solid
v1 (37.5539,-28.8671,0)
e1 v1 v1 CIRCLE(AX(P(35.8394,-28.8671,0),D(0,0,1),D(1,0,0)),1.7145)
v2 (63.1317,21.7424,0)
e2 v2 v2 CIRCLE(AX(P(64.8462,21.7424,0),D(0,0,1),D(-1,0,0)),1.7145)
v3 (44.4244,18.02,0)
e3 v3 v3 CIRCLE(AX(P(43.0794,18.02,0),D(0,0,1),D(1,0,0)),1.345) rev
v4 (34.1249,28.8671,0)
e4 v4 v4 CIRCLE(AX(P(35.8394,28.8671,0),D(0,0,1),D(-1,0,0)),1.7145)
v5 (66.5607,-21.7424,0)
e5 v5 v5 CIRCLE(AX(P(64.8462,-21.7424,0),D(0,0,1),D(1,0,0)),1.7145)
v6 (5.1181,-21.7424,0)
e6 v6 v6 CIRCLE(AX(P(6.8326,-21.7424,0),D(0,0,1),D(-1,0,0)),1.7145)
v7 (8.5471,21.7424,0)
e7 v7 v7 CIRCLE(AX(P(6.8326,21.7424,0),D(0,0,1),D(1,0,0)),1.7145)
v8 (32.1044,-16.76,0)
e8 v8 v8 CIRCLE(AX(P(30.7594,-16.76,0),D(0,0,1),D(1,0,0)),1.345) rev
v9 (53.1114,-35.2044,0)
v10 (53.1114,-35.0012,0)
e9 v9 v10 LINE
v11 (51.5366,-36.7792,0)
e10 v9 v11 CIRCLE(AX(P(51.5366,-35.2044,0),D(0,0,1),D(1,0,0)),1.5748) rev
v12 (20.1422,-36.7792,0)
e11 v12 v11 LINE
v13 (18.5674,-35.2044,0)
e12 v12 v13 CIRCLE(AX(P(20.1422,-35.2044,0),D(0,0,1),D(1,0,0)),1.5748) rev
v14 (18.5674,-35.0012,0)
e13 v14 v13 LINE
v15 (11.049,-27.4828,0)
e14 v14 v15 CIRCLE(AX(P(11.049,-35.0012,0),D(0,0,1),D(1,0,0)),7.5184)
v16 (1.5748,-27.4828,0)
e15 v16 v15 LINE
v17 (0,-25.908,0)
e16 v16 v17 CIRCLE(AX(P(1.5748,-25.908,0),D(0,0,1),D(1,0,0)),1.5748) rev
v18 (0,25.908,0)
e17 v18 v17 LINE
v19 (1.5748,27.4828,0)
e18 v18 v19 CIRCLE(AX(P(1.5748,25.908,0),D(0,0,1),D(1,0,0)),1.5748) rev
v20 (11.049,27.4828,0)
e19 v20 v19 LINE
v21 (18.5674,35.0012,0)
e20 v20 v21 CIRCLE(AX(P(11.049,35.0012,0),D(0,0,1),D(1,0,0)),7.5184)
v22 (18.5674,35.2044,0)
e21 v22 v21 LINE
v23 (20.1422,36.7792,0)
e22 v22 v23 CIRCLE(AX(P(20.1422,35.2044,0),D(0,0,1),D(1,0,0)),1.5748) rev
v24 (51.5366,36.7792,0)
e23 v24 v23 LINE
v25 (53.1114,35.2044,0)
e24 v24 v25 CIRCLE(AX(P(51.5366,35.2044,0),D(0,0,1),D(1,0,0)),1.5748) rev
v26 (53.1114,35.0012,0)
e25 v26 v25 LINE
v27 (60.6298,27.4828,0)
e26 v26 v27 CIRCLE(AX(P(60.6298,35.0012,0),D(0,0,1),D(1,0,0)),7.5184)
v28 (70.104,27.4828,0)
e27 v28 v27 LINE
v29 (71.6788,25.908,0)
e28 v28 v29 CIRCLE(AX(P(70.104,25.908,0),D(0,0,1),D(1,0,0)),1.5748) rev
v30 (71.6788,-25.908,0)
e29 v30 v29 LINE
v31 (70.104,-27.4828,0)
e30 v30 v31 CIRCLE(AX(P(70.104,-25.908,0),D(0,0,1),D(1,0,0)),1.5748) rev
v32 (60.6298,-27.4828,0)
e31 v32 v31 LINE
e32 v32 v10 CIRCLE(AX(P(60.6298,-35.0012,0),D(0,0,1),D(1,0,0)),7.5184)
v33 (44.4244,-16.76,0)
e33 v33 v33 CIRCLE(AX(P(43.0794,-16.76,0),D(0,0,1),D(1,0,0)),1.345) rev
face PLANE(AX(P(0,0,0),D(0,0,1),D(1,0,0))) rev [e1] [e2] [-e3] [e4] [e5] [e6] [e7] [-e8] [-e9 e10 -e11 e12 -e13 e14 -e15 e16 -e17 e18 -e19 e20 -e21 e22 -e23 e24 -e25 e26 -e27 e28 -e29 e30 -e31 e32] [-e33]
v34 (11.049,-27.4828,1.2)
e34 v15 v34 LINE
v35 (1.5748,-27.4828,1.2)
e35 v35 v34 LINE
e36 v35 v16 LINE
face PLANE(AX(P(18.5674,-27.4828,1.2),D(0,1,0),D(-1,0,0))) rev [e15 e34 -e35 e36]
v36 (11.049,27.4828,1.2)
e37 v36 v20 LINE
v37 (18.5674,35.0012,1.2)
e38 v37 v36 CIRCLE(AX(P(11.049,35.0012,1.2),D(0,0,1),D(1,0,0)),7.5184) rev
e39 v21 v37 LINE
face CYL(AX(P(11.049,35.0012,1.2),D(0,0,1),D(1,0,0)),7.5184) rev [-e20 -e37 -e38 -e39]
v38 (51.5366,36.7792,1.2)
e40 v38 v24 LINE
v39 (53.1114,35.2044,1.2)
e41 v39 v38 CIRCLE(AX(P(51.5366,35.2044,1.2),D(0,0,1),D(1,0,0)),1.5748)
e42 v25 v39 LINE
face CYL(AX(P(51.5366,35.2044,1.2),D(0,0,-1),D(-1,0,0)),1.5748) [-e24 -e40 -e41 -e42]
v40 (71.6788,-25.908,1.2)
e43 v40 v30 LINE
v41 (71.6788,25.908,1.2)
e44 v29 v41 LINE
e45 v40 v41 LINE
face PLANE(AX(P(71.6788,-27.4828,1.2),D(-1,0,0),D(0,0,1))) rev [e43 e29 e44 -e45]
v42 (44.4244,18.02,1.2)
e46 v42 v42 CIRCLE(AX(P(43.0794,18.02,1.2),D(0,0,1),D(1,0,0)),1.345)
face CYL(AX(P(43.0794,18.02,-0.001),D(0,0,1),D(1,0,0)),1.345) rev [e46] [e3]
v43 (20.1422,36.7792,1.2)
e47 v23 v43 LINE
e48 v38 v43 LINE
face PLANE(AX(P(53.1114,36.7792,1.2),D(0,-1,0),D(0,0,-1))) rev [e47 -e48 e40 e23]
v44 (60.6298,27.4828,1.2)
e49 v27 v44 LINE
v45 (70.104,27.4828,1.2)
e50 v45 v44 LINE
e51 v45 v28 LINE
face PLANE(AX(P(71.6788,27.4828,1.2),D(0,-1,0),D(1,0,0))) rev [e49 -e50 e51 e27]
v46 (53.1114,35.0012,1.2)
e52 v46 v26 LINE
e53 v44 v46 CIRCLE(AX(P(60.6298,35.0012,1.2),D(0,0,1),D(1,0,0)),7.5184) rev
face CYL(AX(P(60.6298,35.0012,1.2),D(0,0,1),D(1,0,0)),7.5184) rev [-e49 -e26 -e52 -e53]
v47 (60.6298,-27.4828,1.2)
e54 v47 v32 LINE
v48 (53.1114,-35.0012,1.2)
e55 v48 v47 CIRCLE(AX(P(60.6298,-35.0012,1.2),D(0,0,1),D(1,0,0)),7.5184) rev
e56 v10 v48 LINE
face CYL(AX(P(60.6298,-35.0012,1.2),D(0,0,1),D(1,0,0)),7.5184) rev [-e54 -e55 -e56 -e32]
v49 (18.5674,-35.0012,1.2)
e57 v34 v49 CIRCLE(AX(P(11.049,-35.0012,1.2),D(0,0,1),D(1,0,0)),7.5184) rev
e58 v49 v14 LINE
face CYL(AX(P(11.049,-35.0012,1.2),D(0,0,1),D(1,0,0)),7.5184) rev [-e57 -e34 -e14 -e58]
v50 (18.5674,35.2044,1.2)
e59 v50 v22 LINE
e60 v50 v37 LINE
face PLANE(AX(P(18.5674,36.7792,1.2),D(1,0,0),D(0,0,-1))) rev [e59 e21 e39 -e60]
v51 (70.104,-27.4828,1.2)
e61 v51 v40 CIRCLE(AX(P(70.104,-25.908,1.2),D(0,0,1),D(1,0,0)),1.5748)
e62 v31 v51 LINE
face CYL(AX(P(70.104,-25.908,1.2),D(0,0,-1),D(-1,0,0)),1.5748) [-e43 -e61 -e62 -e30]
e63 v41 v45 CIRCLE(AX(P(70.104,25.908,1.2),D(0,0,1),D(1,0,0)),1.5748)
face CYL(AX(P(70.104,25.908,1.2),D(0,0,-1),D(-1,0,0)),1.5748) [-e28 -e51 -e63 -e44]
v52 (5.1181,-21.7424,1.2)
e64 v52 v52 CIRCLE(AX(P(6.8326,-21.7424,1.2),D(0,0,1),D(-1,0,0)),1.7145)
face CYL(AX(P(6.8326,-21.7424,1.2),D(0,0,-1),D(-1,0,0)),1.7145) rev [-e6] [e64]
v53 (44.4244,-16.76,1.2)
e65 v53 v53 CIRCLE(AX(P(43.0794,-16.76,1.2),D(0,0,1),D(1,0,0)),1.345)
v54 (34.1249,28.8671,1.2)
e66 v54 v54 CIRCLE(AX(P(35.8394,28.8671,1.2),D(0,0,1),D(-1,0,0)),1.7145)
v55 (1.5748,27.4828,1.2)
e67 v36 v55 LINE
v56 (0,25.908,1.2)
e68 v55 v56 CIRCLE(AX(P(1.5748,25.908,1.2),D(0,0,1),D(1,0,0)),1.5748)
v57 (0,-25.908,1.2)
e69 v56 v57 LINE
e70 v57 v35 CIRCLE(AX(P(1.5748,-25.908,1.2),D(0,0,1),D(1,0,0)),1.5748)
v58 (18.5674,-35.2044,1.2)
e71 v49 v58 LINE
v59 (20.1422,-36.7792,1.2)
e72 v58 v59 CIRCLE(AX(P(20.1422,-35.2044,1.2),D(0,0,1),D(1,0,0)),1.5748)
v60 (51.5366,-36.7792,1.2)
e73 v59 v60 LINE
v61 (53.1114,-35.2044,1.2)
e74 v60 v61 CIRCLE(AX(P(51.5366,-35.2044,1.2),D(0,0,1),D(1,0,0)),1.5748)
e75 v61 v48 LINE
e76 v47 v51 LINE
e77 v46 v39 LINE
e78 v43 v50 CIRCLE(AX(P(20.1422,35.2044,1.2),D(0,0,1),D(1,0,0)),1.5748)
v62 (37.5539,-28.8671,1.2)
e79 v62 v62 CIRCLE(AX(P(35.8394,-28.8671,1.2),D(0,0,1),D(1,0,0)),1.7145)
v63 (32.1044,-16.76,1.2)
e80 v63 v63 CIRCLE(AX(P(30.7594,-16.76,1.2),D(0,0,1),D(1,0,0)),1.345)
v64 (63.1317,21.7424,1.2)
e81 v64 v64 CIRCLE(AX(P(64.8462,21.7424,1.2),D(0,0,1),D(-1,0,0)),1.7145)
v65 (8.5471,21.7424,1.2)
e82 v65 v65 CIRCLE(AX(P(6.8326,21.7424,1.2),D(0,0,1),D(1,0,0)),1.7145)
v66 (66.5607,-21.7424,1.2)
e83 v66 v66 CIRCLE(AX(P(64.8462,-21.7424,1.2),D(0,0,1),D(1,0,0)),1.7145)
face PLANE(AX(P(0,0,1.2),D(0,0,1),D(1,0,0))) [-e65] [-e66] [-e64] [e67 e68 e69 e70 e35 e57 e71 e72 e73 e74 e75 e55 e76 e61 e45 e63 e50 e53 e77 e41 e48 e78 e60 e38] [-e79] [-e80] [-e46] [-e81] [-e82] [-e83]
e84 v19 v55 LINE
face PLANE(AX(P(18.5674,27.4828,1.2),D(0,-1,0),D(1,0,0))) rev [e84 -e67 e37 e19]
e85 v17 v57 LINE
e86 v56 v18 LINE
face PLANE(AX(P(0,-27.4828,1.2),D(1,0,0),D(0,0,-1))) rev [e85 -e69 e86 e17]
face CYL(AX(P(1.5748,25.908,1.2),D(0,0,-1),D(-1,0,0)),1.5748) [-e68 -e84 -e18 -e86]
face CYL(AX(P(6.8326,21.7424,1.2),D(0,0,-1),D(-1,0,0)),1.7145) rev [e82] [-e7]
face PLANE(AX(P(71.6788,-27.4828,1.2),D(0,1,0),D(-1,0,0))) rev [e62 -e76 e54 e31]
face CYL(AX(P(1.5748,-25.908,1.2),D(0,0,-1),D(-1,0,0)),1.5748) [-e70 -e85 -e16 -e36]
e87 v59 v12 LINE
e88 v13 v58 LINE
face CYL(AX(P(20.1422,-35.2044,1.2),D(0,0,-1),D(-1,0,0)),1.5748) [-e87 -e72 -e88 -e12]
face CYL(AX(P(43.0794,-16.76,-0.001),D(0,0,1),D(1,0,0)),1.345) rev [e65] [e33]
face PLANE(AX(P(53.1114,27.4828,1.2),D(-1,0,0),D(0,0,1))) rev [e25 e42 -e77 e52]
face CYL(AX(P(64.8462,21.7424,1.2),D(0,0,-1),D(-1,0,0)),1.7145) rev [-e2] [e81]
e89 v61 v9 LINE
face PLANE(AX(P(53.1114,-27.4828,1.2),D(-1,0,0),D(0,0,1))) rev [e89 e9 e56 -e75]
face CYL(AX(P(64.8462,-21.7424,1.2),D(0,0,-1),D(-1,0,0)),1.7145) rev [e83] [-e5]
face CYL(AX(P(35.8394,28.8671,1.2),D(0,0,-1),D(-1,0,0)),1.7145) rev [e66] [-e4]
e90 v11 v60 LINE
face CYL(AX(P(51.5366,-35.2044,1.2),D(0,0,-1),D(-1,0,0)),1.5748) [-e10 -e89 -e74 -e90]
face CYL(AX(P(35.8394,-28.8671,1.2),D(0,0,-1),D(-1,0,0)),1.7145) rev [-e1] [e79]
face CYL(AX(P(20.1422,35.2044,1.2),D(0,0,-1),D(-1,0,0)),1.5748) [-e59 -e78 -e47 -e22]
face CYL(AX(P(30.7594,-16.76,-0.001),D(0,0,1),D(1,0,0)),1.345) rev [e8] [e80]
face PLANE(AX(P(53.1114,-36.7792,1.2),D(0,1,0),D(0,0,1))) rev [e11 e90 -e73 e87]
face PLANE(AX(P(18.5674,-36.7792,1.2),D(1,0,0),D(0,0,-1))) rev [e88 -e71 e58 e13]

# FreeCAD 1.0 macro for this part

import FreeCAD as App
import Part
import Sketcher
Q = App.Units.Quantity


def edges_at(feature, points):
    """Names of the edges that pass closest to the given points."""
    edges = feature.Shape.Edges
    near = lambda p: min(range(len(edges)), key=lambda i: edges[i].distToShape(Part.Vertex(*p))[0])
    return sorted({f"Edge{near(p) + 1}" for p in points})


def add_polygon(sketch, points):
    """Adds a closed chain of lines whose ends are joined by coincident constraints."""
    first, n = sketch.GeometryCount, len(points)
    for a, b in zip(points, points[1:] + points[:1]):
        sketch.addGeometry(Part.LineSegment(App.Vector(*a, 0), App.Vector(*b, 0)), False)
    for i in range(n):
        sketch.addConstraint(Sketcher.Constraint("Coincident", first + i, 2, first + (i + 1) % n, 1))

doc = App.newDocument("Part")
params = doc.addObject("Spreadsheet::Sheet", "Params")
for row, (alias, value) in enumerate([
    ("sketch1_diameter", "0.135 in"),
    ("sketch1_width", "1.36 in"),
    ("sketch1_width2", "0.731 in"),
    ("sketch1_height", "2.164 in"),
    ("sketch1_height2", "0.366 in"),
    ("pad1_length", "1.2 mm"),
    ("fillet_radius", "0.296 in"),
    ("fillet2_radius", "0.062 in"),
], start=1):
    params.set(f"A{row}", alias)
    params.set(f"B{row}", "=" + value)
    params.setAlias(f"B{row}", alias)

body = doc.addObject("PartDesign::Body", "Body")

# Sketch on XY plane
sketch1 = doc.addObject("Sketcher::SketchObject", "Sketch")
body.addObject(sketch1)
sketch1.AttachmentSupport = (doc.XY_Plane, [""])
sketch1.MapMode = "FlatFace"
add_polygon(sketch1, [(71.6788, -27.4828), (71.6788, 27.4828), (53.1114, 27.4828), (53.1114, 36.7792), (18.5674, 36.7792), (18.5674, 27.4828), (0, 27.4828), (0, -27.4828), (18.5674, -27.4828), (18.5674, -36.7792), (53.1114, -36.7792), (53.1114, -27.4828)])  # lines 0-11
sketch1.addGeometry(Part.Circle(App.Vector(6.8326, -21.7424, 0), App.Vector(0, 0, 1), 1.7145), False)  # 12
sketch1.addGeometry(Part.Circle(App.Vector(35.8394, -28.8671, 0), App.Vector(0, 0, 1), 1.7145), False)  # 13
sketch1.addGeometry(Part.Circle(App.Vector(64.8462, -21.7424, 0), App.Vector(0, 0, 1), 1.7145), False)  # 14
sketch1.addGeometry(Part.Circle(App.Vector(6.8326, 21.7424, 0), App.Vector(0, 0, 1), 1.7145), False)  # 15
sketch1.addGeometry(Part.Circle(App.Vector(35.8394, 28.8671, 0), App.Vector(0, 0, 1), 1.7145), False)  # 16
sketch1.addGeometry(Part.Circle(App.Vector(64.8462, 21.7424, 0), App.Vector(0, 0, 1), 1.7145), False)  # 17
sketch1.addConstraint([
    Sketcher.Constraint("Vertical", 0),
    Sketcher.Constraint("Horizontal", 1),
    Sketcher.Constraint("Vertical", 2),
    Sketcher.Constraint("Horizontal", 3),
    Sketcher.Constraint("Vertical", 4),
    Sketcher.Constraint("Horizontal", 5),
    Sketcher.Constraint("Vertical", 6),
    Sketcher.Constraint("Horizontal", 7),
    Sketcher.Constraint("Vertical", 8),
    Sketcher.Constraint("Horizontal", 9),
    Sketcher.Constraint("Vertical", 10),
    Sketcher.Constraint("Horizontal", 11),
    Sketcher.Constraint("Equal", 12, 13),
    Sketcher.Constraint("Equal", 13, 14),
    Sketcher.Constraint("Equal", 14, 15),
    Sketcher.Constraint("Equal", 15, 16),
    Sketcher.Constraint("Equal", 16, 17),
    Sketcher.Constraint("Symmetric", 5, 2, 6, 2, -1, 1),
    Sketcher.Constraint("Symmetric", 12, 3, 15, 3, -1),
    Sketcher.Constraint("Symmetric", 13, 3, 16, 3, -1),
    Sketcher.Constraint("Symmetric", 14, 3, 17, 3, -1),
    Sketcher.Constraint("Symmetric", 3, 2, 8, 2, -1),
    Sketcher.Constraint("Symmetric", 1, 2, 10, 2, -1),
    Sketcher.Constraint("Horizontal", 12, 3, 14, 3),
    Sketcher.Constraint("Horizontal", 1, 2, 4, 2),
    Sketcher.Constraint("Equal", 1, 5),
    Sketcher.Constraint("Diameter", 12, Q("0.135 in")),
    Sketcher.Constraint("DistanceX", 3, 2, 3, 1, Q("1.36 in")),
    Sketcher.Constraint("DistanceX", 1, 2, 1, 1, Q("0.731 in")),
    Sketcher.Constraint("DistanceY", 0, 1, 0, 2, Q("2.164 in")),
    Sketcher.Constraint("DistanceY", 2, 1, 2, 2, Q("0.366 in")),
    Sketcher.Constraint("DistanceX", 16, 3, 1, 2, Q("0.68 in")),
    Sketcher.Constraint("DistanceX", -1, 1, 12, 3, Q("0.269 in")),
    Sketcher.Constraint("DistanceY", 12, 3, -1, 1, Q("0.856 in")),
    Sketcher.Constraint("DistanceX", -1, 1, 14, 3, Q("2.553 in")),
    Sketcher.Constraint("DistanceY", 13, 3, 16, 3, Q("2.273 in")),
])
sketch1.setExpression("Constraints[38]", "Params.sketch1_diameter")
sketch1.setExpression("Constraints[39]", "Params.sketch1_width")
sketch1.setExpression("Constraints[40]", "Params.sketch1_width2")
sketch1.setExpression("Constraints[41]", "Params.sketch1_height")
sketch1.setExpression("Constraints[42]", "Params.sketch1_height2")
pad1 = doc.addObject("PartDesign::Pad", "Pad")
body.addObject(pad1)
pad1.Profile = sketch1
pad1.setExpression("Length", "Params.pad1_length")
doc.recompute()

fillet = doc.addObject("PartDesign::Fillet", "Fillet")
body.addObject(fillet)
fillet.Base = (pad1, edges_at(pad1, [
    (53.111, -27.483, 0.6),
    (18.567, -27.483, 0.6),
    (18.567, 27.483, 0.6),
    (53.111, 27.483, 0.6),
]))
fillet.setExpression("Radius", "Params.fillet_radius")
doc.recompute()

fillet2 = doc.addObject("PartDesign::Fillet", "Fillet001")
body.addObject(fillet2)
fillet2.Base = (fillet, edges_at(fillet, [
    (53.111, -36.779, 0.6),
    (18.567, -36.779, 0.6),
    (0, -27.483, 0.6),
    (0, 27.483, 0.6),
    (18.567, 36.779, 0.6),
    (53.111, 36.779, 0.6),
    (71.679, 27.483, 0.6),
    (71.679, -27.483, 0.6),
]))
fillet2.setExpression("Radius", "Params.fillet2_radius")

# Sketch on XY plane
sketch2 = doc.addObject("Sketcher::SketchObject", "Sketch001")
body.addObject(sketch2)
sketch2.AttachmentSupport = (doc.XY_Plane, [""])
sketch2.MapMode = "FlatFace"
sketch2.AttachmentOffset = App.Placement(App.Vector(0, 0, 1.2), App.Rotation())
sketch2.addGeometry(Part.Circle(App.Vector(30.7594, -16.76, 0), App.Vector(0, 0, 1), 1.345), False)
sketch2.addConstraint([
    Sketcher.Constraint("Diameter", 0, 2.69),
    Sketcher.Constraint("DistanceX", -1, 1, 0, 3, Q("1.211 in")),
    Sketcher.Constraint("DistanceY", 0, 3, -1, 1, 16.76),
])
pocket1 = doc.addObject("PartDesign::Pocket", "Pocket")
body.addObject(pocket1)
pocket1.Profile = sketch2
pocket1.Type = "UpToFirst"

# Sketch on XY plane
sketch3 = doc.addObject("Sketcher::SketchObject", "Sketch002")
body.addObject(sketch3)
sketch3.AttachmentSupport = (doc.XY_Plane, [""])
sketch3.MapMode = "FlatFace"
sketch3.AttachmentOffset = App.Placement(App.Vector(0, 0, 1.2), App.Rotation())
sketch3.addGeometry(Part.Circle(App.Vector(43.0794, -16.76, 0), App.Vector(0, 0, 1), 1.345), False)
sketch3.addConstraint([
    Sketcher.Constraint("Diameter", 0, 2.69),
    Sketcher.Constraint("DistanceX", -1, 1, 0, 3, 43.0794),
    Sketcher.Constraint("DistanceY", 0, 3, -1, 1, 16.76),
])
pocket2 = doc.addObject("PartDesign::Pocket", "Pocket001")
body.addObject(pocket2)
pocket2.Profile = sketch3
pocket2.Type = "UpToFirst"

# Sketch on XY plane
sketch4 = doc.addObject("Sketcher::SketchObject", "Sketch003")
body.addObject(sketch4)
sketch4.AttachmentSupport = (doc.XY_Plane, [""])
sketch4.MapMode = "FlatFace"
sketch4.AttachmentOffset = App.Placement(App.Vector(0, 0, 1.2), App.Rotation())
sketch4.addGeometry(Part.Circle(App.Vector(43.0794, 18.02, 0), App.Vector(0, 0, 1), 1.345), False)
sketch4.addConstraint([
    Sketcher.Constraint("Diameter", 0, 2.69),
    Sketcher.Constraint("DistanceX", -1, 1, 0, 3, 43.0794),
    Sketcher.Constraint("DistanceY", -1, 1, 0, 3, 18.02),
])
pocket3 = doc.addObject("PartDesign::Pocket", "Pocket002")
body.addObject(pocket3)
pocket3.Profile = sketch4
pocket3.Type = "UpToFirst"

doc.recompute()
